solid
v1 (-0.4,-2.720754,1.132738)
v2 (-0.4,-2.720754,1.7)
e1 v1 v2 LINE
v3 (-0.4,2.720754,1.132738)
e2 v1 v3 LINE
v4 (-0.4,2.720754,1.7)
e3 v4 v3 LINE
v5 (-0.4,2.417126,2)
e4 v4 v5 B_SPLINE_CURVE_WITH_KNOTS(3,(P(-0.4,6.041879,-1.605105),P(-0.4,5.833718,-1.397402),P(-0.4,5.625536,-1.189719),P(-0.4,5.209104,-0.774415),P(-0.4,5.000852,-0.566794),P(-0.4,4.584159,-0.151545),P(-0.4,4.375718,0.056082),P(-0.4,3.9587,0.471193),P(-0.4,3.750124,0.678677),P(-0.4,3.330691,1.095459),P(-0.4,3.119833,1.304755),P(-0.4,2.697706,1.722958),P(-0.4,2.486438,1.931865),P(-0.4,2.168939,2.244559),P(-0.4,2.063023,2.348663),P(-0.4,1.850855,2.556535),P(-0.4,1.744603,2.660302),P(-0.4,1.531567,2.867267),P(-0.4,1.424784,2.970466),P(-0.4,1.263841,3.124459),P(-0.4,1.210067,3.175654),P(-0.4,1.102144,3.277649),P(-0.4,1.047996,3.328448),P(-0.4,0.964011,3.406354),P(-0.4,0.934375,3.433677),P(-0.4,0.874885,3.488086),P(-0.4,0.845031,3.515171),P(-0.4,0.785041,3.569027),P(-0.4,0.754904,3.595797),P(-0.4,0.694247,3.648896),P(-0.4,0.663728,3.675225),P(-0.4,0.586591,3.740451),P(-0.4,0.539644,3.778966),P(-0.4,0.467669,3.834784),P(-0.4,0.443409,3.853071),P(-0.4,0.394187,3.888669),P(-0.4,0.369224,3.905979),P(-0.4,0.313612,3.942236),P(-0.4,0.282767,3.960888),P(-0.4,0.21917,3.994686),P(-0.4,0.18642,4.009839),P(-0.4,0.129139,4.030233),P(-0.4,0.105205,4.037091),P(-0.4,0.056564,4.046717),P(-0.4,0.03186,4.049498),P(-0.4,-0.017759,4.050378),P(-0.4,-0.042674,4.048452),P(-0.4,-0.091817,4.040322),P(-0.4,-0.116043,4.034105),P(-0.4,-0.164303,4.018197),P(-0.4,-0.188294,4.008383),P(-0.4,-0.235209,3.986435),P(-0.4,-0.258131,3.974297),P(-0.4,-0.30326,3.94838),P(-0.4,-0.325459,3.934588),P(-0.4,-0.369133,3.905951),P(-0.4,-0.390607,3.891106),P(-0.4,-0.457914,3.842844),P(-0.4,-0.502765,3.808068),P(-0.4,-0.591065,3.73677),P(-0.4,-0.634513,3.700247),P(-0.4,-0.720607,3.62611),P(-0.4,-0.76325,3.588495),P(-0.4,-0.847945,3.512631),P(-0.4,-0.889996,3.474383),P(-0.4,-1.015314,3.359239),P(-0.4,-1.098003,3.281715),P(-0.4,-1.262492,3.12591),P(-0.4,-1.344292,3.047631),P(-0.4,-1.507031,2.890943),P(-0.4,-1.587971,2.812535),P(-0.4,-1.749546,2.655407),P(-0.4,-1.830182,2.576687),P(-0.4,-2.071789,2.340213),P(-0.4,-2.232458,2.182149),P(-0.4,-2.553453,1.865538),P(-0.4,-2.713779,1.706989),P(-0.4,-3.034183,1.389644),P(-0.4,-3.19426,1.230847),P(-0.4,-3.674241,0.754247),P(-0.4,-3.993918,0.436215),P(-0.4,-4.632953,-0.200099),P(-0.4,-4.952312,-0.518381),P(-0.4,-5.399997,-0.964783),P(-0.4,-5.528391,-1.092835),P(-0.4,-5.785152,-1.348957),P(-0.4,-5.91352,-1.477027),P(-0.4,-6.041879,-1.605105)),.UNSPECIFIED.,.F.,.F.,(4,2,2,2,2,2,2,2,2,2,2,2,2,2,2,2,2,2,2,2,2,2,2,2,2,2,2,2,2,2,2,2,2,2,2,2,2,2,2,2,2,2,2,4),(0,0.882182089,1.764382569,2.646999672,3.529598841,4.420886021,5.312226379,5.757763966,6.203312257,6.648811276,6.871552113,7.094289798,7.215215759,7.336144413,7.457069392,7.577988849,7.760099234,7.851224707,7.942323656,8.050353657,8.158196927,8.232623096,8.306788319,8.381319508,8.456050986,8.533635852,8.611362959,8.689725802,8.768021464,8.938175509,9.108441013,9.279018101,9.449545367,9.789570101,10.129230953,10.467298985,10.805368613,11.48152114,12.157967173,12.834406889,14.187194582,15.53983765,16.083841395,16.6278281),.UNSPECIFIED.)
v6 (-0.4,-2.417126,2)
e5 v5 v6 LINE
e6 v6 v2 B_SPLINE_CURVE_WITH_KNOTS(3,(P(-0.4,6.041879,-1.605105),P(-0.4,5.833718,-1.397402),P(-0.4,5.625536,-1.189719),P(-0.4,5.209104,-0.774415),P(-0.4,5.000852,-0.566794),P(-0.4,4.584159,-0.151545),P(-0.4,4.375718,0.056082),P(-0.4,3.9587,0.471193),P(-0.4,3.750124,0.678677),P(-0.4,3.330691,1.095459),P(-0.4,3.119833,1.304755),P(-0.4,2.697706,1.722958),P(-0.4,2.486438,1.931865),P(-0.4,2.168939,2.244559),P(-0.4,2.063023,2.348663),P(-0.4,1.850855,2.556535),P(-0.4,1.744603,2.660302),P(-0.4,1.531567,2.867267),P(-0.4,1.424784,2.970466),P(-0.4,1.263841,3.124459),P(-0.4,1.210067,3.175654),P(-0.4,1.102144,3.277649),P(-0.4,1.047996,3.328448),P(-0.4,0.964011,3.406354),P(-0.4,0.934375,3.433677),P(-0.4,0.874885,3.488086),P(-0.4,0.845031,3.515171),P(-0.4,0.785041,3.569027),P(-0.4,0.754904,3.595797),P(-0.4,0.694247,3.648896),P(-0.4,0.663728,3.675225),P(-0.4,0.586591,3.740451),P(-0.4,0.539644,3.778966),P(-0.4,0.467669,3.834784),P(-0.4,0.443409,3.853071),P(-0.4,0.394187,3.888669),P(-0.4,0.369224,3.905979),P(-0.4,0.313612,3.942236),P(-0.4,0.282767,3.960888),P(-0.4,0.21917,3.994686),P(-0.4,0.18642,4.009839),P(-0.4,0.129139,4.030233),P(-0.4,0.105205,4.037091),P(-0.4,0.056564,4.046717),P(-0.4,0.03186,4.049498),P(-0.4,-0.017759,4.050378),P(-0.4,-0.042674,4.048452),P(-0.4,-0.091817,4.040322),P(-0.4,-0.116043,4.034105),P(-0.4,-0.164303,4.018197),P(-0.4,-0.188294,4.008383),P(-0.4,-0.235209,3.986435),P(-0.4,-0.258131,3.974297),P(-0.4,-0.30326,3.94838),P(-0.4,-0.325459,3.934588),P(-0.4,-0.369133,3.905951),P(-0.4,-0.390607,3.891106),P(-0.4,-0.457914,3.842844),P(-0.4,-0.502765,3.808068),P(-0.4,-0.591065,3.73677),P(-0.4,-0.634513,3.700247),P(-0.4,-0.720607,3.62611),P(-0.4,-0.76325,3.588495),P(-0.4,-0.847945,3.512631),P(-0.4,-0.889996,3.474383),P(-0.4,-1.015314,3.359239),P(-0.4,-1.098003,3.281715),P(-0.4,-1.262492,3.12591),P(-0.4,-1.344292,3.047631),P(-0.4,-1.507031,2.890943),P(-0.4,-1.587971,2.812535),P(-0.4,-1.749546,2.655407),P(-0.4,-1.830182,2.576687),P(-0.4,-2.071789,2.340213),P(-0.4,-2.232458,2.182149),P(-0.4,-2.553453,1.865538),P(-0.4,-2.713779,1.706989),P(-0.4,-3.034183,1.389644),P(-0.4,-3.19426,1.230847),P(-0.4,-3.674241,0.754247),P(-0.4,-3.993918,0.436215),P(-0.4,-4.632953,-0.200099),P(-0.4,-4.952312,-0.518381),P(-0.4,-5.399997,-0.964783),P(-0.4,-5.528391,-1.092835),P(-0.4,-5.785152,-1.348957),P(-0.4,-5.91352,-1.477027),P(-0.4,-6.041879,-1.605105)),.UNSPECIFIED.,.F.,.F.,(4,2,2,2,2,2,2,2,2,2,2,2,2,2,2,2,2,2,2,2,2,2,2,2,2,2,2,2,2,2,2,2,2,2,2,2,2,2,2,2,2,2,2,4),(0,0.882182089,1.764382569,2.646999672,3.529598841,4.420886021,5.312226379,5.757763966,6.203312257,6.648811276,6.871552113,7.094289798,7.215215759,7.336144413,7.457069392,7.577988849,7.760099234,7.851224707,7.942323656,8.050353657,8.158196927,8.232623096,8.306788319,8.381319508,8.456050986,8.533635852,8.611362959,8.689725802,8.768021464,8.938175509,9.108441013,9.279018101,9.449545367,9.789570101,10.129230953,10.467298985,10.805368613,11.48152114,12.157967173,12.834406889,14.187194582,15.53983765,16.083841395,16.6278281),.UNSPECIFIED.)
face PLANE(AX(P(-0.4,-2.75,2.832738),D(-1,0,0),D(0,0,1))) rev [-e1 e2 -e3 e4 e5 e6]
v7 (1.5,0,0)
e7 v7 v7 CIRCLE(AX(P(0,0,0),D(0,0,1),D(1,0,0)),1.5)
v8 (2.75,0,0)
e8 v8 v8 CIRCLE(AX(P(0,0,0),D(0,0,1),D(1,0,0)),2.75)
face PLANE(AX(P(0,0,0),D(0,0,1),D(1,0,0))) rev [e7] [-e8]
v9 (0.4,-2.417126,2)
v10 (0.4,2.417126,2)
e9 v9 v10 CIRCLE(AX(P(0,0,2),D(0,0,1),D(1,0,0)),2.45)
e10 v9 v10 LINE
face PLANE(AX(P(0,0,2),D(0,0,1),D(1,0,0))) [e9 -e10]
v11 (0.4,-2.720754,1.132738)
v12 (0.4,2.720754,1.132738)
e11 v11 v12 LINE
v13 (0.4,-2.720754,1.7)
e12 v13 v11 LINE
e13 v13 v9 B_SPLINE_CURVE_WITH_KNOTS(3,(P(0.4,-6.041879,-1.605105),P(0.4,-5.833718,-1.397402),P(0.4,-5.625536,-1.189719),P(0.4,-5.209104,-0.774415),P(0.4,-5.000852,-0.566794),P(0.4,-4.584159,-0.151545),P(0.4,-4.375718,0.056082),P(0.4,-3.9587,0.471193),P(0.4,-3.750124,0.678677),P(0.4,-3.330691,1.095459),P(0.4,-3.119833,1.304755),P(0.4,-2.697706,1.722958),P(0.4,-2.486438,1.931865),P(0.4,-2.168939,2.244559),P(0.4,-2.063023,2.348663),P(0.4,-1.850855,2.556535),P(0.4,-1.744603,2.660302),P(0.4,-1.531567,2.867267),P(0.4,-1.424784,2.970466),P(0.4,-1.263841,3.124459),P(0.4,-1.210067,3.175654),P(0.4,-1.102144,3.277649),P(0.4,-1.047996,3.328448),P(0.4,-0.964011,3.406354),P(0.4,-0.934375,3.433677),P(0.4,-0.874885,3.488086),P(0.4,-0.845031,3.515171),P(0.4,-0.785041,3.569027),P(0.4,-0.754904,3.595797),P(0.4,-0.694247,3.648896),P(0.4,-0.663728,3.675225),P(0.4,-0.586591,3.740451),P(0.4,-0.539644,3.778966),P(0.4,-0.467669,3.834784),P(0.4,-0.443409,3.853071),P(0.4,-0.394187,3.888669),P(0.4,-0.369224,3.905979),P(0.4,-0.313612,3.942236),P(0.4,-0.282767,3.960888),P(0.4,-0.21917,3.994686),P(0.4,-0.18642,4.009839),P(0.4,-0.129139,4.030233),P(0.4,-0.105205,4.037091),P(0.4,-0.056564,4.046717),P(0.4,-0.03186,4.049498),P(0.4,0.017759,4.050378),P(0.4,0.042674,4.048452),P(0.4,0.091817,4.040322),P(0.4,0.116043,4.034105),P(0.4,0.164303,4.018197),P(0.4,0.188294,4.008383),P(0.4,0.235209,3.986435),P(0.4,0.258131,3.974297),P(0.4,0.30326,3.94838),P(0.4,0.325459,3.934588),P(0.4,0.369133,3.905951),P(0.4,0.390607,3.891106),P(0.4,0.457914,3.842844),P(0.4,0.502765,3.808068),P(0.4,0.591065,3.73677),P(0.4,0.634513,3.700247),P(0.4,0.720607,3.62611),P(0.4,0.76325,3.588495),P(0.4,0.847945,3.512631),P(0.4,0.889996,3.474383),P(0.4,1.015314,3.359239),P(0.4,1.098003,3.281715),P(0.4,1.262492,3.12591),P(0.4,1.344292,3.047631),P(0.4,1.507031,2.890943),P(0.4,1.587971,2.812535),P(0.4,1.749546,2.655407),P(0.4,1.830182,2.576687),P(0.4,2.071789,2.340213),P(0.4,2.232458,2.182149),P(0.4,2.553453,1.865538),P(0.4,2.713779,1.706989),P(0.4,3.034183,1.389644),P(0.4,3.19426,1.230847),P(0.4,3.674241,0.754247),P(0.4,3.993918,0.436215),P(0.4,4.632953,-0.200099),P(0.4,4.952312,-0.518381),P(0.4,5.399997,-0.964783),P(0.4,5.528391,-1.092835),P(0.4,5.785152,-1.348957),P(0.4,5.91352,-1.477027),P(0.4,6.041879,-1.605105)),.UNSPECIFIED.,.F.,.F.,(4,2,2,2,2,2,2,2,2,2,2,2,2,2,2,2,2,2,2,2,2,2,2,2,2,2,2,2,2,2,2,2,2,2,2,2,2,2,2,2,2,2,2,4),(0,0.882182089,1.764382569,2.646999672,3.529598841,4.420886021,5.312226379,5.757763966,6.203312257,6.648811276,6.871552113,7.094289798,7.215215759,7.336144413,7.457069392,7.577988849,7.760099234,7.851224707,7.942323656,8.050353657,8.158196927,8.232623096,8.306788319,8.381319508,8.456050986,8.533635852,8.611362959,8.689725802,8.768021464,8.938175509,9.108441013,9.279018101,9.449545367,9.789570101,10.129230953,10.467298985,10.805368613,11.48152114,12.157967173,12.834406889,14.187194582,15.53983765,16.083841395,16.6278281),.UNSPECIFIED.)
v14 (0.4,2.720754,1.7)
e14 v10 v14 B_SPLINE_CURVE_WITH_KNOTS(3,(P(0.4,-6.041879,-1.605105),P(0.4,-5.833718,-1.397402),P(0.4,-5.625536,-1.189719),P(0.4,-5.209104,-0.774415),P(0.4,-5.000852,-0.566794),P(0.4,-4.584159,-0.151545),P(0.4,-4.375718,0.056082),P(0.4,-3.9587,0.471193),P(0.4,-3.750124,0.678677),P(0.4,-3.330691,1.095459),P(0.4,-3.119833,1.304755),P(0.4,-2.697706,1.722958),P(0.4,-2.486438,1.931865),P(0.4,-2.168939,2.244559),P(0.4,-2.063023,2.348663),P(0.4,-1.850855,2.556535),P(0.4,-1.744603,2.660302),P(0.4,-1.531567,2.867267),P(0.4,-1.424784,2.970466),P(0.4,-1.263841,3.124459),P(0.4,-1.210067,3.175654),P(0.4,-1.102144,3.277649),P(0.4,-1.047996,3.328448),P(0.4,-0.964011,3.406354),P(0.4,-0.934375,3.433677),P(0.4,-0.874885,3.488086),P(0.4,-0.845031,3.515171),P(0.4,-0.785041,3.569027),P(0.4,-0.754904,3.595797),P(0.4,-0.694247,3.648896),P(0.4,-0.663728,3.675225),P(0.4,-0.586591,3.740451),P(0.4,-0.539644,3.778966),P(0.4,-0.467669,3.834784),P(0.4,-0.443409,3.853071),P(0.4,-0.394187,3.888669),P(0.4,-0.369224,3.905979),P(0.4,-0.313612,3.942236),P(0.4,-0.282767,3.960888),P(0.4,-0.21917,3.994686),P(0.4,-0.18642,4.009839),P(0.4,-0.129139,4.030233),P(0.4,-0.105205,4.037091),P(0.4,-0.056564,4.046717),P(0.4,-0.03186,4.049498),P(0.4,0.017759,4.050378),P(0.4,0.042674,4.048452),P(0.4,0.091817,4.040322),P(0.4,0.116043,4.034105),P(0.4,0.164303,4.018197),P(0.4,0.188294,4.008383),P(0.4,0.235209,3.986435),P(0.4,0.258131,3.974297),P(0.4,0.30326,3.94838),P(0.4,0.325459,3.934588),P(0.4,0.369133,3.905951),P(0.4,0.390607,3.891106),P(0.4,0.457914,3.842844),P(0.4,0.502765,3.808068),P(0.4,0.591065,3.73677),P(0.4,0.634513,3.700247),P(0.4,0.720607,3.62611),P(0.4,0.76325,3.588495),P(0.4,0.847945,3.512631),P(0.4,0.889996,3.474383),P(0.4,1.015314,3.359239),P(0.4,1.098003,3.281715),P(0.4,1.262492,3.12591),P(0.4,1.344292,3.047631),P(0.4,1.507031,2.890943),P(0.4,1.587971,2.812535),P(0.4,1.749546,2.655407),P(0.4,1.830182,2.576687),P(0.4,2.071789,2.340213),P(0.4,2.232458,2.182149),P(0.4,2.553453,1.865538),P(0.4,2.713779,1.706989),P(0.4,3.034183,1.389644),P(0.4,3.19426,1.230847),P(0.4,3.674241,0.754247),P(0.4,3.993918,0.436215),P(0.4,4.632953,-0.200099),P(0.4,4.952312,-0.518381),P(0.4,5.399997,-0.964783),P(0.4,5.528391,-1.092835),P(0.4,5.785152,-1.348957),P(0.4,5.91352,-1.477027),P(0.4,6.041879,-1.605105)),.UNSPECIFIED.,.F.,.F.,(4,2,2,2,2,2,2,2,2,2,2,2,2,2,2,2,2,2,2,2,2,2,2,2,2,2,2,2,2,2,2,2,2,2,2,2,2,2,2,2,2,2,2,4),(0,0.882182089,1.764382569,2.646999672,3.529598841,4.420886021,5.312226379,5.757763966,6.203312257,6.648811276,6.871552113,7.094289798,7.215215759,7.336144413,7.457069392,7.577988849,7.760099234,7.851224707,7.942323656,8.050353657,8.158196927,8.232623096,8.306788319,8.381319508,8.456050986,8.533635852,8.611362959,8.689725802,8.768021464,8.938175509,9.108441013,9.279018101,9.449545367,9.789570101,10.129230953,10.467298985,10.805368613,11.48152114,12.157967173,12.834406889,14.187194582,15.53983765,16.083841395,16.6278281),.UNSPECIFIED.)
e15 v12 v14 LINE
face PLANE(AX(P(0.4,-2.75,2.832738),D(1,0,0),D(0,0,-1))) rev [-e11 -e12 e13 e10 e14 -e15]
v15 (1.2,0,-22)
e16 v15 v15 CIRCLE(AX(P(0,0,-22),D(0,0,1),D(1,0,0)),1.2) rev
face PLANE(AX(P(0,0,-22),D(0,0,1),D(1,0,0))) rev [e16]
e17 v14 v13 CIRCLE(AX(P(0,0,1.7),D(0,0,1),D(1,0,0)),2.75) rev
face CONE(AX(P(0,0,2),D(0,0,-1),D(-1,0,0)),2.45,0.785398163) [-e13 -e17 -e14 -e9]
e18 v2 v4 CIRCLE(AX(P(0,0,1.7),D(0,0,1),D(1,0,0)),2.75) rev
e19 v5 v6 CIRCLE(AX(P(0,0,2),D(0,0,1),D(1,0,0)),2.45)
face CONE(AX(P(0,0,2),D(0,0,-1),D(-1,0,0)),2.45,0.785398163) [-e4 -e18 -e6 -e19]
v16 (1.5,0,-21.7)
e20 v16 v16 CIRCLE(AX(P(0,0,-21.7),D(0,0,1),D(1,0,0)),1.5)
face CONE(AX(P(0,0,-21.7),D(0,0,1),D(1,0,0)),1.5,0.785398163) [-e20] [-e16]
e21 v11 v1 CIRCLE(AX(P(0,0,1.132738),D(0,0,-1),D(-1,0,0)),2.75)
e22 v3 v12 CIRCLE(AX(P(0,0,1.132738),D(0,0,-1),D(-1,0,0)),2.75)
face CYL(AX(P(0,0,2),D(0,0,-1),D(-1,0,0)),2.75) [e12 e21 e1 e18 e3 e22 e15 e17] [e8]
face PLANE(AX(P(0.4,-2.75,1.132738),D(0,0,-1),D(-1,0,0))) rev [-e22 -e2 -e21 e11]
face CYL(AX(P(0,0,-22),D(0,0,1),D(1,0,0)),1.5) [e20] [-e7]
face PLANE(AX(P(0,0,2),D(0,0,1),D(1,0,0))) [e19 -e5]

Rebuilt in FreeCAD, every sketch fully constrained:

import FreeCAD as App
import Part
import Sketcher
from FreeCAD import Vector


def edges_at(feature, points):
    """Names of the edges that pass closest to the given points."""
    edges = feature.Shape.Edges
    near = lambda p: min(range(len(edges)), key=lambda i: edges[i].distToShape(Part.Vertex(*p))[0])
    return sorted({f"Edge{near(p) + 1}" for p in points})


def add_polygon(sketch, points):
    """Adds a closed chain of lines whose ends are joined by coincident constraints."""
    first, n = sketch.GeometryCount, len(points)
    for a, b in zip(points, points[1:] + points[:1]):
        sketch.addGeometry(Part.LineSegment(App.Vector(*a, 0), App.Vector(*b, 0)), False)
    for i in range(n):
        sketch.addConstraint(Sketcher.Constraint("Coincident", first + i, 2, first + (i + 1) % n, 1))

doc = App.newDocument("Part")
body = doc.addObject("PartDesign::Body", "Body")

sketch1 = doc.addObject("Sketcher::SketchObject", "Sketch")
body.addObject(sketch1)
sketch1.AttachmentSupport = (doc.XY_Plane, [""])
sketch1.MapMode = "FlatFace"
sketch1.addGeometry(Part.Circle(Vector(0, 0, 0), Vector(0, 0, 1), 1.5), False)
sketch1.addConstraint([
    Sketcher.Constraint("Coincident", 0, 3, -1, 1),
    Sketcher.Constraint("Diameter", 0, 3.0),
])
pad1 = doc.addObject("PartDesign::Pad", "Pad")
body.addObject(pad1)
pad1.Profile = sketch1
pad1.Length = 22
pad1.Reversed = True

sketch2 = doc.addObject("Sketcher::SketchObject", "Sketch001")
body.addObject(sketch2)
sketch2.AttachmentSupport = (doc.XY_Plane, [""])
sketch2.MapMode = "FlatFace"
sketch2.addGeometry(Part.Circle(Vector(0, 0, 0), Vector(0, 0, 1), 2.75), False)
sketch2.addConstraint([
    Sketcher.Constraint("Coincident", 0, 3, -1, 1),
    Sketcher.Constraint("Diameter", 0, 5.5),
])
pad2 = doc.addObject("PartDesign::Pad", "Pad001")
body.addObject(pad2)
pad2.Profile = sketch2
pad2.Length = 2
doc.recompute()

chamfer = doc.addObject("PartDesign::Chamfer", "Chamfer")
body.addObject(chamfer)
chamfer.Base = (pad2, edges_at(pad2, [(-1.5, 0, -22), (-2.75, 0, 2)]))
chamfer.Size = 0.3

sketch3 = doc.addObject("Sketcher::SketchObject", "Sketch002")
body.addObject(sketch3)
sketch3.AttachmentSupport = (doc.XZ_Plane, [""])
sketch3.MapMode = "FlatFace"
add_polygon(sketch3, [(-0.4, 1.132738), (-0.4, 2.832738), (0.4, 2.832738), (0.4, 1.132738)])
sketch3.addConstraint([
    Sketcher.Constraint("Vertical", 0),
    Sketcher.Constraint("Horizontal", 1),
    Sketcher.Constraint("Vertical", 2),
    Sketcher.Constraint("Horizontal", 3),
    Sketcher.Constraint("DistanceX", 1, 1, 1, 2, 0.8),
    Sketcher.Constraint("DistanceY", 0, 1, 0, 2, 1.7),
    Sketcher.Constraint("DistanceX", 0, 2, -1, 1, 0.4),
    Sketcher.Constraint("DistanceY", -1, 1, 0, 2, 2.832738),
])
pocket1 = doc.addObject("PartDesign::Pocket", "Pocket")
body.addObject(pocket1)
pocket1.Profile = sketch3
pocket1.Type = "ThroughAll"
pocket1.Midplane = True

doc.recompute()
